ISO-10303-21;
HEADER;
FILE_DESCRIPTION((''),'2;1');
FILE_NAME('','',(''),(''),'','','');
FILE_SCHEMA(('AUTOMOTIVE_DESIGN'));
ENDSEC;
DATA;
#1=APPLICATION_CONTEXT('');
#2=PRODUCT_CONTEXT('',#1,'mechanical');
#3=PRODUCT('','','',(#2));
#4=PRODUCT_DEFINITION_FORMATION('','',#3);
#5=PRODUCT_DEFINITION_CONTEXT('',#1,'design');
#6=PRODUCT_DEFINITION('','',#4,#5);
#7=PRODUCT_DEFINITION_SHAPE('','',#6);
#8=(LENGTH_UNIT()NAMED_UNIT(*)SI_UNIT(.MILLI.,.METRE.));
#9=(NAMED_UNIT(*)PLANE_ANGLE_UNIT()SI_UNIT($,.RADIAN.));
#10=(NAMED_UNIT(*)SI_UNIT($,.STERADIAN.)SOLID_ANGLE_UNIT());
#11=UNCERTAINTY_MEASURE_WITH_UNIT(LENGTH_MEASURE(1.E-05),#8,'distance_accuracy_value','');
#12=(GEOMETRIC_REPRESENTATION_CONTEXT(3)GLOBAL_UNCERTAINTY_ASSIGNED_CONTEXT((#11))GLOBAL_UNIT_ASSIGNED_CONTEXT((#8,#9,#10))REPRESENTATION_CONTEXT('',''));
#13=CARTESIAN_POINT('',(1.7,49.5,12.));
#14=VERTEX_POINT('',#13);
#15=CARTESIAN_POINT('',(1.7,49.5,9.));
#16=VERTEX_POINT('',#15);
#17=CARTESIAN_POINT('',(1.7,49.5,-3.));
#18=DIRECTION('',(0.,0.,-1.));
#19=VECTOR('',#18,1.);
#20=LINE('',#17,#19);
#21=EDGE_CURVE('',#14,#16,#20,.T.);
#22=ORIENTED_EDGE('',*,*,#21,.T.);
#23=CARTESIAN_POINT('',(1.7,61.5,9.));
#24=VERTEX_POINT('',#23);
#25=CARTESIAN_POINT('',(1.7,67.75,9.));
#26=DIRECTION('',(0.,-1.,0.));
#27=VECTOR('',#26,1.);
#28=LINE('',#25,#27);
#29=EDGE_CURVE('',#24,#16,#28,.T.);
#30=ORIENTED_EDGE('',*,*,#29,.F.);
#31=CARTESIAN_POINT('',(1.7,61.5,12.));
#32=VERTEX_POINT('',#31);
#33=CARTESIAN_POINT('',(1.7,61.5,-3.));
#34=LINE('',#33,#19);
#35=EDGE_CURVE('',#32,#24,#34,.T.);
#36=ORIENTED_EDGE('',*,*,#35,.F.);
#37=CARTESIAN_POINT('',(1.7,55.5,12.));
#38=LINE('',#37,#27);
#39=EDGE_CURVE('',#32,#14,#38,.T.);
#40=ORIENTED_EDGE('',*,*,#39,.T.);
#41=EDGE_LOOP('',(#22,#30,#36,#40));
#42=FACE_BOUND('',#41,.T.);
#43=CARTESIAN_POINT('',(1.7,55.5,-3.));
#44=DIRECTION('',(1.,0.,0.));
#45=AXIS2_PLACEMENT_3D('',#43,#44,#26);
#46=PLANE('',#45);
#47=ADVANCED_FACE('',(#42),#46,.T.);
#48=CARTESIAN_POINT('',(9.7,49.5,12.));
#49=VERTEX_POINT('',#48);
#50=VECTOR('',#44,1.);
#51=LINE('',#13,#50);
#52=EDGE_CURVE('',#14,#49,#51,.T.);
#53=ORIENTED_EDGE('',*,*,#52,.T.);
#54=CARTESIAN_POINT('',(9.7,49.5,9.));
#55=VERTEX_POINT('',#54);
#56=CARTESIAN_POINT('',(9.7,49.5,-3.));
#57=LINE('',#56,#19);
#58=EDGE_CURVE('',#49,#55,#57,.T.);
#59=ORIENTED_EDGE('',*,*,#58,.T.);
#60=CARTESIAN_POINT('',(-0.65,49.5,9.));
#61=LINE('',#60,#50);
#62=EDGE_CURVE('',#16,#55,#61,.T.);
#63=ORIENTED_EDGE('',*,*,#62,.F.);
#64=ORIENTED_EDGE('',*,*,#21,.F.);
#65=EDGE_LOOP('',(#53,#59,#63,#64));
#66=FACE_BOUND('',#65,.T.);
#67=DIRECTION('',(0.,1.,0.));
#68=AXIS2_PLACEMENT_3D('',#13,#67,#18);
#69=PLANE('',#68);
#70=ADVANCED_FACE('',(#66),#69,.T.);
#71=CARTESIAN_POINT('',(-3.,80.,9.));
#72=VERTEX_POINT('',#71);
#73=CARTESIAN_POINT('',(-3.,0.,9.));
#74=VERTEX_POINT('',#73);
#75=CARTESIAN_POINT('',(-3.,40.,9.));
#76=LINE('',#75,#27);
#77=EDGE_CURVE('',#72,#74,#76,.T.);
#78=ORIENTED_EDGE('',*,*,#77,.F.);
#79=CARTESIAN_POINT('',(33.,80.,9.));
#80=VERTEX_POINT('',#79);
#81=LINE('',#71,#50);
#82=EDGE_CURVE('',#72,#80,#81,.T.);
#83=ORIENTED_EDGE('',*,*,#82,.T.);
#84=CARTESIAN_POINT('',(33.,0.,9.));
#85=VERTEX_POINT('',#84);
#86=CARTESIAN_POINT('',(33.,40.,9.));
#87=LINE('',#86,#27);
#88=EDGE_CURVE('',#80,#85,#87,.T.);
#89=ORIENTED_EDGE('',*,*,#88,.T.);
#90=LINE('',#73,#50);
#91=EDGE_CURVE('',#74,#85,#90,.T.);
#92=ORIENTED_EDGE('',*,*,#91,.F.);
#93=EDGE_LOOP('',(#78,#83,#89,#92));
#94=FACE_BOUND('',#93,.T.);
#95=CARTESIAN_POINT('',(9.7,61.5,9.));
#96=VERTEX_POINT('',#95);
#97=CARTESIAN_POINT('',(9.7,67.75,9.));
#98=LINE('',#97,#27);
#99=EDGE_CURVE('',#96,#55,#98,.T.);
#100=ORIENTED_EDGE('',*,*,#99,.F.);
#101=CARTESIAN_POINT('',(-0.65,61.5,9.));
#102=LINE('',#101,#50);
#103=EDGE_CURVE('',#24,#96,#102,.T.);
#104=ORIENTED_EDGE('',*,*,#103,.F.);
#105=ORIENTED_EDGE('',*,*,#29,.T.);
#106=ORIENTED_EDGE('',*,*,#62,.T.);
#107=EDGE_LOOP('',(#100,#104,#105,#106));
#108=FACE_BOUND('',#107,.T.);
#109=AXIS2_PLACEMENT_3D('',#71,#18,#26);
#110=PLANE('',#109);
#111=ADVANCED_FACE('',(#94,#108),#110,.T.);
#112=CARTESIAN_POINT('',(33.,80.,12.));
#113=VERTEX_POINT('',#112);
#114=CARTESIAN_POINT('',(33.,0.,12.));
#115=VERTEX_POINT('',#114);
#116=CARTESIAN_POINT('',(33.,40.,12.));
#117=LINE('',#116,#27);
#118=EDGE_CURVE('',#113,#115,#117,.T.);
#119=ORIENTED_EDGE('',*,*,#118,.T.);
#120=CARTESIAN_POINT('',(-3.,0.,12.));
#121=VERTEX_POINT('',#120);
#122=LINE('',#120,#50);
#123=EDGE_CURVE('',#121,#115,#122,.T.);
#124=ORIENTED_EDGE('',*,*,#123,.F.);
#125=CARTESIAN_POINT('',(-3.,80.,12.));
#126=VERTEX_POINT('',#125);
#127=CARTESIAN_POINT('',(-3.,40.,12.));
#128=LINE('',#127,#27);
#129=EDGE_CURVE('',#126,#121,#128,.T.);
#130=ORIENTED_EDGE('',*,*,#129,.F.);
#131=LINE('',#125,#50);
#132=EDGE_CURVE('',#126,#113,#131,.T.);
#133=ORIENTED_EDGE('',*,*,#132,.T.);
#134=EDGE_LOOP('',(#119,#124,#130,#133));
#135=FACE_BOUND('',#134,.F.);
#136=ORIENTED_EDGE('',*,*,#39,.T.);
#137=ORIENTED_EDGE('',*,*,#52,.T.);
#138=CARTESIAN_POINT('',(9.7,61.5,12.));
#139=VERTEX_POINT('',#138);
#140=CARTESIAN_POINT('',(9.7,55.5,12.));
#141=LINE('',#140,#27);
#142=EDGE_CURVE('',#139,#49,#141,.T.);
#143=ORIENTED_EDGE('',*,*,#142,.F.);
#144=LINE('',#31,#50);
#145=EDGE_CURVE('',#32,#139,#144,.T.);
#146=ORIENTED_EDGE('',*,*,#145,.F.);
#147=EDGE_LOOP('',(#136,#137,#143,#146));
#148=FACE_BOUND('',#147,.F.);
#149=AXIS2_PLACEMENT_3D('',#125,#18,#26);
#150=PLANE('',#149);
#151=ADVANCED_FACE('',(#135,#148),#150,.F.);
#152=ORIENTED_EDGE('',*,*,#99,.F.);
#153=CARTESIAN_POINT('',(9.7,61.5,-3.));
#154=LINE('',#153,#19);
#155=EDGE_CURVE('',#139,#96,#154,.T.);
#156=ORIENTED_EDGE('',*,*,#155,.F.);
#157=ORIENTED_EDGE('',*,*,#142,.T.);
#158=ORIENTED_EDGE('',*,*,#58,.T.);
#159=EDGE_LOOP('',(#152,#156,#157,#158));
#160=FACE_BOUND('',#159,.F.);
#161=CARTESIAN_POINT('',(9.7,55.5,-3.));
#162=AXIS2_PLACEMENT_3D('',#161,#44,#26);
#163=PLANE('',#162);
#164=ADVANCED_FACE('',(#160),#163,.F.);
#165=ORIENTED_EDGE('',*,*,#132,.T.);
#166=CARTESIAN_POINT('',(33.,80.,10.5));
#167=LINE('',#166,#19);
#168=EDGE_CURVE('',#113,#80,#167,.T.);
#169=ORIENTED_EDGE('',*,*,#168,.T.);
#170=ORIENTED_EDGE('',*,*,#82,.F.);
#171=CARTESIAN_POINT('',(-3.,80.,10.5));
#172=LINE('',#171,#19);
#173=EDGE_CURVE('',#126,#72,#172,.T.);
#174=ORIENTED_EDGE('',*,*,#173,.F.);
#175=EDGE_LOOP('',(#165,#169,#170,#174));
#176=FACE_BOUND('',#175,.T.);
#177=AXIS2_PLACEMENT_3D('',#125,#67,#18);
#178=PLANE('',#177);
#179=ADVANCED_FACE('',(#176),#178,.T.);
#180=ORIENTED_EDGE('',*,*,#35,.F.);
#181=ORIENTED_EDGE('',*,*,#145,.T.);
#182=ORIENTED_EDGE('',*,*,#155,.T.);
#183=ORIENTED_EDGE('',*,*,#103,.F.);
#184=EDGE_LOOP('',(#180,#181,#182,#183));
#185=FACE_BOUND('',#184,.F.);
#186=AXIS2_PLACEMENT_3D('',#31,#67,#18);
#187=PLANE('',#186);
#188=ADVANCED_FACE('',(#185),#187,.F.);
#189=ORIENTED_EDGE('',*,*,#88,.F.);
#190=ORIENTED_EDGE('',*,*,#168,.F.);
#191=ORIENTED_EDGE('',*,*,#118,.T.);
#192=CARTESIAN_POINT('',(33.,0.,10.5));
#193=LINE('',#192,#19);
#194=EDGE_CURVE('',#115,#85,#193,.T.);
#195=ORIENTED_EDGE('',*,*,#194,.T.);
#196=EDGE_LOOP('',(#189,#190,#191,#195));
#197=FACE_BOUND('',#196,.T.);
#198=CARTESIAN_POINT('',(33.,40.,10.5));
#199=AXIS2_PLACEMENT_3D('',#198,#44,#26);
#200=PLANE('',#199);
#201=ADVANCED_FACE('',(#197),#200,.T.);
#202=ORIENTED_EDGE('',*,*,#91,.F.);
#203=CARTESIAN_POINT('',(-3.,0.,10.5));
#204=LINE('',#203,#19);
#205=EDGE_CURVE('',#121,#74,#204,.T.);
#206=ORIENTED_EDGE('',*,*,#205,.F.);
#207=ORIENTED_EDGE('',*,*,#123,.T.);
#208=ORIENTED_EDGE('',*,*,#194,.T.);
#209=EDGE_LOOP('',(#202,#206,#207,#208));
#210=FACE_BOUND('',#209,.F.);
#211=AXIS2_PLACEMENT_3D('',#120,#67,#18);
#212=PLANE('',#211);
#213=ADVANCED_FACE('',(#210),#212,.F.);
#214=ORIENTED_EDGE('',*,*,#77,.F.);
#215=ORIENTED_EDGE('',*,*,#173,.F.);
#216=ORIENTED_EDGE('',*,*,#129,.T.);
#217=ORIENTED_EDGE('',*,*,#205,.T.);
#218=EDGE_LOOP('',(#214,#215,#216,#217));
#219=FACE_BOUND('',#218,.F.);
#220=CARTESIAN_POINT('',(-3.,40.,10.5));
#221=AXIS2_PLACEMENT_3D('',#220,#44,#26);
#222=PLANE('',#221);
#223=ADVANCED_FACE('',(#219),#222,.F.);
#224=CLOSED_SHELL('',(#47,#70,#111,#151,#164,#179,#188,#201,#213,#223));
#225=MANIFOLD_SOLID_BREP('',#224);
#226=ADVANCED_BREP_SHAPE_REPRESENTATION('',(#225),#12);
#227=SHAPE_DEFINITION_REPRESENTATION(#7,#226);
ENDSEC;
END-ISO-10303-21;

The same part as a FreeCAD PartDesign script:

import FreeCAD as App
import Part
import Sketcher

V = App.Vector
Q = App.Units.Quantity


def add_polygon(sketch, points):
    """Adds a closed chain of lines whose ends are joined by coincident constraints."""
    first, n = sketch.GeometryCount, len(points)
    for a, b in zip(points, points[1:] + points[:1]):
        sketch.addGeometry(Part.LineSegment(App.Vector(*a, 0), App.Vector(*b, 0)), False)
    for i in range(n):
        sketch.addConstraint(Sketcher.Constraint("Coincident", first + i, 2, first + (i + 1) % n, 1))

doc = App.newDocument("Part")
body = doc.addObject("PartDesign::Body", "Body")

sketch1 = body.newObject("Sketcher::SketchObject", "Sketch")
sketch1.AttachmentSupport = (doc.getObject("XY_Plane"), [""])
sketch1.MapMode = "FlatFace"
sketch1.AttachmentOffset = App.Placement(V(0, 0, 4.7), App.Rotation())
add_polygon(sketch1, [(30, -18.5), (0, -18.5), (0, -30.5), (30, -30.5)])
sketch1.addConstraint(Sketcher.Constraint("Horizontal", 0))
sketch1.addConstraint(Sketcher.Constraint("Vertical", 1))
sketch1.addConstraint(Sketcher.Constraint("Horizontal", 2))
sketch1.addConstraint(Sketcher.Constraint("Vertical", 3))
sketch1.addConstraint(Sketcher.Constraint("PointOnObject", 0, 2, -2))
sketch1.addConstraint(Sketcher.Constraint("DistanceX", 0, 2, 0, 1, Q("30 mm")))
sketch1.addConstraint(Sketcher.Constraint("DistanceY", 1, 2, 1, 1, Q("12 mm")))
sketch1.addConstraint(Sketcher.Constraint("DistanceY", 0, 2, -1, 1, Q("18.5 mm")))
pad1 = body.newObject("PartDesign::Pad", "Pad")
pad1.Profile = sketch1
pad1.Length = 8
body2 = doc.addObject("PartDesign::Body", "Body001")

sketch2 = body2.newObject("Sketcher::SketchObject", "Sketch001")
sketch2.AttachmentSupport = (doc.getObject("XY_Plane001"), [""])
sketch2.MapMode = "FlatFace"
add_polygon(sketch2, [(3, 0), (0, 0), (0, -80), (3, -80)])
sketch2.addConstraint(Sketcher.Constraint("Horizontal", 0))
sketch2.addConstraint(Sketcher.Constraint("Vertical", 1))
sketch2.addConstraint(Sketcher.Constraint("Horizontal", 2))
sketch2.addConstraint(Sketcher.Constraint("Vertical", 3))
sketch2.addConstraint(Sketcher.Constraint("Coincident", 0, 2, -1, 1))
sketch2.addConstraint(Sketcher.Constraint("DistanceX", 0, 2, 0, 1, Q("3 mm")))
sketch2.addConstraint(Sketcher.Constraint("DistanceY", 1, 2, 1, 1, Q("80 mm")))
pad2 = body2.newObject("PartDesign::Pad", "Pad001")
pad2.Profile = sketch2
pad2.Length = 36
doc.recompute()

boolean = body2.newObject("PartDesign::Boolean", "Boolean")
boolean.Type = "Cut"
boolean.addObjects([body])
body3 = doc.addObject("PartDesign::Body", "Body002")
doc.recompute()

body2.Placement = App.Placement(V(-12, 80, -3), App.Rotation(V(0, 0, 1), 0))
boolean2 = body3.newObject("PartDesign::Boolean", "Boolean001")
boolean2.Type = "Fuse"
boolean2.addObjects([body2])
body4 = doc.addObject("PartDesign::Body", "Body003")
doc.recompute()

body3.Placement = App.Placement(V(0, 0, 0), App.Rotation(V(0, 1, 0), 90))
boolean3 = body4.newObject("PartDesign::Boolean", "Boolean002")
boolean3.Type = "Fuse"
boolean3.addObjects([body3])

doc.recompute()
